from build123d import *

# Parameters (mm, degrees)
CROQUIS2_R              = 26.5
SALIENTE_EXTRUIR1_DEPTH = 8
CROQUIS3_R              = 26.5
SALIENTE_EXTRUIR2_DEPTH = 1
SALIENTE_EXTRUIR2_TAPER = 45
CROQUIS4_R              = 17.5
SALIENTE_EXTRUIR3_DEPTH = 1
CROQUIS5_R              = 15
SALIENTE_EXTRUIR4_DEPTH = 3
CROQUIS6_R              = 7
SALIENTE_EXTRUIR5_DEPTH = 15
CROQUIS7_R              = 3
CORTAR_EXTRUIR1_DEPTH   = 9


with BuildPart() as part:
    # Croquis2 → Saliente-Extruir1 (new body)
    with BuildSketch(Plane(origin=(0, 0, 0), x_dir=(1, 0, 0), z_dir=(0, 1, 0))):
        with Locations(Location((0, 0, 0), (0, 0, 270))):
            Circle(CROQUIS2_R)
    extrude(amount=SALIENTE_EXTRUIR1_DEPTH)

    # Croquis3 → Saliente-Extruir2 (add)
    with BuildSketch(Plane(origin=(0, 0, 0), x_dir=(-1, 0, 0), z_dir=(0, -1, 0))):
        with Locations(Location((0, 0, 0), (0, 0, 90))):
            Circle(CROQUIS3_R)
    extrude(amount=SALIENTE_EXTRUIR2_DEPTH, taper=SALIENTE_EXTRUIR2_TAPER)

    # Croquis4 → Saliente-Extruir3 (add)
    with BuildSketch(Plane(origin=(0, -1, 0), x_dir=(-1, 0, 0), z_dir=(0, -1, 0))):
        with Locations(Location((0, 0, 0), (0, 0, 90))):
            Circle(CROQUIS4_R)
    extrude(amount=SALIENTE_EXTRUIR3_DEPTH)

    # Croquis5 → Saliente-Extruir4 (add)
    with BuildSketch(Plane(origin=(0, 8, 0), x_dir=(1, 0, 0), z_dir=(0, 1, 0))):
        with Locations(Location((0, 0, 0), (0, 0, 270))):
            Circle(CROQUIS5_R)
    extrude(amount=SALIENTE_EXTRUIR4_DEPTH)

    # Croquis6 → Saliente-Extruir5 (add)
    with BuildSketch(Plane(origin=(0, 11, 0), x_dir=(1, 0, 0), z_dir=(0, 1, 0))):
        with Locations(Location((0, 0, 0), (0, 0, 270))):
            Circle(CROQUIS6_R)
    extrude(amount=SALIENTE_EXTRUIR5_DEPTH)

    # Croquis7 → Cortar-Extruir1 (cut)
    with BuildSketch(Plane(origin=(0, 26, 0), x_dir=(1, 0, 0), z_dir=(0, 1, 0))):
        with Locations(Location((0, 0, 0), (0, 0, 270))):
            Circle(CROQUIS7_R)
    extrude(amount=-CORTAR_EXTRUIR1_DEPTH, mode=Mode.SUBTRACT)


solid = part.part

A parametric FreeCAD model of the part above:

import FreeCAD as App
import Part
import Sketcher

V = App.Vector
Q = App.Units.Quantity

doc = App.newDocument("Part")
body = doc.addObject("PartDesign::Body", "Body")

# Sketch on XZ plane
sketch1 = body.newObject("Sketcher::SketchObject", "Sketch")
sketch1.AttachmentSupport = (doc.getObject("XZ_Plane"), [""])
sketch1.MapMode = "FlatFace"
sketch1.addGeometry(Part.Circle(V(0, 0, 0), V(0, 0, 1), 26.5), False)
sketch1.addConstraint(Sketcher.Constraint("Coincident", 0, 3, -1, 1))
sketch1.addConstraint(Sketcher.Constraint("Diameter", 0, Q("53 mm")))
pad1 = body.newObject("PartDesign::Pad", "Pad")
pad1.Profile = sketch1
pad1.Length = 8
pad1.Reversed = True

# Sketch on XZ plane
sketch2 = body.newObject("Sketcher::SketchObject", "Sketch001")
sketch2.AttachmentSupport = (doc.getObject("XZ_Plane"), [""])
sketch2.MapMode = "FlatFace"
sketch2.addGeometry(Part.Circle(V(0, 0, 0), V(0, 0, 1), 26.5), False)
sketch2.addConstraint(Sketcher.Constraint("Coincident", 0, 3, -1, 1))
sketch2.addConstraint(Sketcher.Constraint("Diameter", 0, Q("53 mm")))
pad2 = body.newObject("PartDesign::Pad", "Pad001")
pad2.Profile = sketch2
pad2.Length = 1
pad2.TaperAngle = -45

# Sketch on XZ plane
sketch3 = body.newObject("Sketcher::SketchObject", "Sketch002")
sketch3.AttachmentSupport = (doc.getObject("XZ_Plane"), [""])
sketch3.MapMode = "FlatFace"
sketch3.AttachmentOffset = App.Placement(V(0, 0, 1), App.Rotation())
sketch3.addGeometry(Part.Circle(V(0, 0, 0), V(0, 0, 1), 17.5), False)
sketch3.addConstraint(Sketcher.Constraint("Coincident", 0, 3, -1, 1))
sketch3.addConstraint(Sketcher.Constraint("Diameter", 0, Q("35 mm")))
pad3 = body.newObject("PartDesign::Pad", "Pad002")
pad3.Profile = sketch3
pad3.Length = 1

# Sketch on XZ plane
sketch4 = body.newObject("Sketcher::SketchObject", "Sketch003")
sketch4.AttachmentSupport = (doc.getObject("XZ_Plane"), [""])
sketch4.MapMode = "FlatFace"
sketch4.AttachmentOffset = App.Placement(V(0, 0, -8), App.Rotation())
sketch4.addGeometry(Part.Circle(V(0, 0, 0), V(0, 0, 1), 15), False)
sketch4.addConstraint(Sketcher.Constraint("Coincident", 0, 3, -1, 1))
sketch4.addConstraint(Sketcher.Constraint("Diameter", 0, Q("30 mm")))
pad4 = body.newObject("PartDesign::Pad", "Pad003")
pad4.Profile = sketch4
pad4.Length = 3
pad4.Reversed = True

# Sketch on XZ plane
sketch5 = body.newObject("Sketcher::SketchObject", "Sketch004")
sketch5.AttachmentSupport = (doc.getObject("XZ_Plane"), [""])
sketch5.MapMode = "FlatFace"
sketch5.AttachmentOffset = App.Placement(V(0, 0, -11), App.Rotation())
sketch5.addGeometry(Part.Circle(V(0, 0, 0), V(0, 0, 1), 7), False)
sketch5.addConstraint(Sketcher.Constraint("Coincident", 0, 3, -1, 1))
sketch5.addConstraint(Sketcher.Constraint("Diameter", 0, Q("14 mm")))
pad5 = body.newObject("PartDesign::Pad", "Pad004")
pad5.Profile = sketch5
pad5.Length = 15
pad5.Reversed = True

# Sketch on XZ plane
sketch6 = body.newObject("Sketcher::SketchObject", "Sketch005")
sketch6.AttachmentSupport = (doc.getObject("XZ_Plane"), [""])
sketch6.MapMode = "FlatFace"
sketch6.AttachmentOffset = App.Placement(V(0, 0, -26), App.Rotation())
sketch6.addGeometry(Part.Circle(V(0, 0, 0), V(0, 0, 1), 3), False)
sketch6.addConstraint(Sketcher.Constraint("Coincident", 0, 3, -1, 1))
sketch6.addConstraint(Sketcher.Constraint("Diameter", 0, Q("6 mm")))
pocket1 = body.newObject("PartDesign::Pocket", "Pocket")
pocket1.Profile = sketch6
pocket1.Length = 9
pocket1.Reversed = True

doc.recompute()
